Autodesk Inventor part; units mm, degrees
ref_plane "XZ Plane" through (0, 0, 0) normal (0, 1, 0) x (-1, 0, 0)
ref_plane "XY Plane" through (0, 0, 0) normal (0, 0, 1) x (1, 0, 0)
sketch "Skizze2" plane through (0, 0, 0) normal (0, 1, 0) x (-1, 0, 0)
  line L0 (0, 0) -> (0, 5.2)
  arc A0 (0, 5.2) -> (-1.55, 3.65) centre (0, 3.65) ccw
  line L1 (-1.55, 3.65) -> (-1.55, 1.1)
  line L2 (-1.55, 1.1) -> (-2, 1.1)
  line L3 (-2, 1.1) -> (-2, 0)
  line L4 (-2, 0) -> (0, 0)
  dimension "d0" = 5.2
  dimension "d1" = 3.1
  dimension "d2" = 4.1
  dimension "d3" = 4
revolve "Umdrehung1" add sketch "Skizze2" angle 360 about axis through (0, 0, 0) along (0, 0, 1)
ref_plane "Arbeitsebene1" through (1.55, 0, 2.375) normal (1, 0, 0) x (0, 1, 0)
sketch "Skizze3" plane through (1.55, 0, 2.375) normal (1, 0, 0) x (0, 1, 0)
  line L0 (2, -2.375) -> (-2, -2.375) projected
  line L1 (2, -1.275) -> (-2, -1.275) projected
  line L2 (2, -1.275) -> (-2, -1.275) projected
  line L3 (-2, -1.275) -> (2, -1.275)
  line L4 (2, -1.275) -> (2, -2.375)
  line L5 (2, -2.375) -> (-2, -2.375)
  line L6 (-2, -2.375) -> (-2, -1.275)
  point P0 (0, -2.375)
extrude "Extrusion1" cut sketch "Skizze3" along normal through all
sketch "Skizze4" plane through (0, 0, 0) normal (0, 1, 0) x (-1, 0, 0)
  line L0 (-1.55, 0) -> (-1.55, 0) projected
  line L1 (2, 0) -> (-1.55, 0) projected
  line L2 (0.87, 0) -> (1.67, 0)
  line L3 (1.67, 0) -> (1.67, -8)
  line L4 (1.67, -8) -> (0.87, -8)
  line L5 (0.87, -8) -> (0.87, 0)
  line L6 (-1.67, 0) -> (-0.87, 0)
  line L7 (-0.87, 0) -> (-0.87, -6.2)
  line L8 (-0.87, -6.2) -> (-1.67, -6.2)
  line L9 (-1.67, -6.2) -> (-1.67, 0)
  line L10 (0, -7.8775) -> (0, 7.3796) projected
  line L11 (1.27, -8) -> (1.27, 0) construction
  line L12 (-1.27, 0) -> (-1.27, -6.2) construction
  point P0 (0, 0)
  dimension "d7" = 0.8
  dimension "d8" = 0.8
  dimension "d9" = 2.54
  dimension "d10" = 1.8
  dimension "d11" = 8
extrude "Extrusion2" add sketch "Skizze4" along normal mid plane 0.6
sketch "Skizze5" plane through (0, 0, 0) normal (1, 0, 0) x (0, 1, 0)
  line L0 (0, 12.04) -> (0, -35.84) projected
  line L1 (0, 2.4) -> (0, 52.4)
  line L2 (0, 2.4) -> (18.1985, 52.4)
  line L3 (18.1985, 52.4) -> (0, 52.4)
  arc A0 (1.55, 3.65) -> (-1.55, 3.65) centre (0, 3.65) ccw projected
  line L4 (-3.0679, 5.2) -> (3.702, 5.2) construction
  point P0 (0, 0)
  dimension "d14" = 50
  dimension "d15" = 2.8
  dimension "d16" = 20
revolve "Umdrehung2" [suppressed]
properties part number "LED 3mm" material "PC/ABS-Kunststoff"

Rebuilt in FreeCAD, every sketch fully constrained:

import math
import FreeCAD as App
import Part
import Sketcher
Q = App.Units.Quantity


def add_polygon(sketch, points):
    """Adds a closed chain of lines whose ends are joined by coincident constraints."""
    first, n = sketch.GeometryCount, len(points)
    for a, b in zip(points, points[1:] + points[:1]):
        sketch.addGeometry(Part.LineSegment(App.Vector(*a, 0), App.Vector(*b, 0)), False)
    for i in range(n):
        sketch.addConstraint(Sketcher.Constraint("Coincident", first + i, 2, first + (i + 1) % n, 1))

doc = App.newDocument("Part")
body = doc.addObject("PartDesign::Body", "Body")

# Sketch on XZ plane
sketch1 = body.newObject("Sketcher::SketchObject", "Sketch")
sketch1.AttachmentSupport = (doc.getObject("XZ_Plane"), [""])
sketch1.MapMode = "FlatFace"
sketch1.addGeometry(Part.LineSegment(App.Vector(2, 0, 0), App.Vector(0, 0, 0)), False)
sketch1.addGeometry(Part.LineSegment(App.Vector(0, 0, 0), App.Vector(0, 5.2, 0)), False)
sketch1.addGeometry(Part.ArcOfCircle(Part.Circle(App.Vector(0, 3.65, 0), App.Vector(0, 0, 1), 1.55), math.radians(0), math.radians(90)), False)
sketch1.addGeometry(Part.LineSegment(App.Vector(1.55, 3.65, 0), App.Vector(1.55, 1.1, 0)), False)
sketch1.addGeometry(Part.LineSegment(App.Vector(1.55, 1.1, 0), App.Vector(2, 1.1, 0)), False)
sketch1.addGeometry(Part.LineSegment(App.Vector(2, 1.1, 0), App.Vector(2, 0, 0)), False)
sketch1.addConstraint(Sketcher.Constraint("Coincident", 0, 2, 1, 1))
sketch1.addConstraint(Sketcher.Constraint("Coincident", 1, 2, 2, 2))
sketch1.addConstraint(Sketcher.Constraint("Tangent", 2, 1, 3, 1))
sketch1.addConstraint(Sketcher.Constraint("Coincident", 3, 2, 4, 1))
sketch1.addConstraint(Sketcher.Constraint("Coincident", 4, 2, 5, 1))
sketch1.addConstraint(Sketcher.Constraint("Coincident", 5, 2, 0, 1))
sketch1.addConstraint(Sketcher.Constraint("Horizontal", 0))
sketch1.addConstraint(Sketcher.Constraint("Vertical", 1))
sketch1.addConstraint(Sketcher.Constraint("Vertical", 3))
sketch1.addConstraint(Sketcher.Constraint("Horizontal", 4))
sketch1.addConstraint(Sketcher.Constraint("Vertical", 5))
sketch1.addConstraint(Sketcher.Constraint("Coincident", 0, 2, -1, 1))
sketch1.addConstraint(Sketcher.Constraint("PointOnObject", 2, 3, -2))
sketch1.addConstraint(Sketcher.Constraint("Radius", 2, Q("1.55 mm")))
sketch1.addConstraint(Sketcher.Constraint("DistanceY", 1, 1, 1, 2, Q("5.2 mm")))
sketch1.addConstraint(Sketcher.Constraint("DistanceY", 3, 2, 1, 2, Q("4.1 mm")))
sketch1.addConstraint(Sketcher.Constraint("DistanceX", 0, 2, 0, 1, Q("2 mm")))
revolution = body.newObject("PartDesign::Revolution", "Revolution")
revolution.Profile = sketch1
revolution.ReferenceAxis = (sketch1, ["V_Axis"])
revolution.Angle = 360

# Sketch on YZ plane
sketch2 = body.newObject("Sketcher::SketchObject", "Sketch001")
sketch2.AttachmentSupport = (doc.getObject("YZ_Plane"), [""])
sketch2.MapMode = "FlatFace"
sketch2.AttachmentOffset = App.Placement(App.Vector(0, 0, 1.55), App.Rotation())
add_polygon(sketch2, [(-2, 0), (2, 0), (2, 1.1), (-2, 1.1)])  # lines 0-3
sketch2.addConstraint(Sketcher.Constraint("Horizontal", 0))
sketch2.addConstraint(Sketcher.Constraint("Vertical", 1))
sketch2.addConstraint(Sketcher.Constraint("Horizontal", 2))
sketch2.addConstraint(Sketcher.Constraint("Vertical", 3))
sketch2.addConstraint(Sketcher.Constraint("Symmetric", 0, 2, 3, 2, -1, 1))
sketch2.addConstraint(Sketcher.Constraint("DistanceX", 0, 1, 0, 2, Q("4 mm")))
sketch2.addConstraint(Sketcher.Constraint("DistanceY", 1, 1, 1, 2, Q("1.1 mm")))
pocket1 = body.newObject("PartDesign::Pocket", "Pocket")
pocket1.Profile = sketch2
pocket1.Type = "ThroughAll"
pocket1.Reversed = True

# Sketch on XZ plane
sketch3 = body.newObject("Sketcher::SketchObject", "Sketch002")
sketch3.AttachmentSupport = (doc.getObject("XZ_Plane"), [""])
sketch3.MapMode = "FlatFace"
add_polygon(sketch3, [(-1.7, -8), (-1.7, 0), (-0.9, 0), (-0.9, -8)])  # lines 0-3
add_polygon(sketch3, [(0.9, -6.2), (0.9, 0), (1.7, 0), (1.7, -6.2)])  # lines 4-7
sketch3.addConstraint(Sketcher.Constraint("Vertical", 0))
sketch3.addConstraint(Sketcher.Constraint("Horizontal", 1))
sketch3.addConstraint(Sketcher.Constraint("Vertical", 2))
sketch3.addConstraint(Sketcher.Constraint("Horizontal", 3))
sketch3.addConstraint(Sketcher.Constraint("Vertical", 4))
sketch3.addConstraint(Sketcher.Constraint("Horizontal", 5))
sketch3.addConstraint(Sketcher.Constraint("Vertical", 6))
sketch3.addConstraint(Sketcher.Constraint("Horizontal", 7))
sketch3.addConstraint(Sketcher.Constraint("Symmetric", 1, 2, 4, 2, -1, 1))
sketch3.addConstraint(Sketcher.Constraint("Symmetric", 0, 2, 5, 2, -2))
sketch3.addConstraint(Sketcher.Constraint("DistanceY", 0, 1, 0, 2, Q("8 mm")))
sketch3.addConstraint(Sketcher.Constraint("DistanceX", 1, 1, 1, 2, Q("0.8 mm")))
sketch3.addConstraint(Sketcher.Constraint("DistanceY", 2, 2, 6, 2, Q("1.8 mm")))
sketch3.addConstraint(Sketcher.Constraint("DistanceX", 0, 2, 4, 2, Q("2.54 mm")))
pad1 = body.newObject("PartDesign::Pad", "Pad")
pad1.Profile = sketch3
pad1.Length = 0.6
pad1.Midplane = True

doc.recompute()
